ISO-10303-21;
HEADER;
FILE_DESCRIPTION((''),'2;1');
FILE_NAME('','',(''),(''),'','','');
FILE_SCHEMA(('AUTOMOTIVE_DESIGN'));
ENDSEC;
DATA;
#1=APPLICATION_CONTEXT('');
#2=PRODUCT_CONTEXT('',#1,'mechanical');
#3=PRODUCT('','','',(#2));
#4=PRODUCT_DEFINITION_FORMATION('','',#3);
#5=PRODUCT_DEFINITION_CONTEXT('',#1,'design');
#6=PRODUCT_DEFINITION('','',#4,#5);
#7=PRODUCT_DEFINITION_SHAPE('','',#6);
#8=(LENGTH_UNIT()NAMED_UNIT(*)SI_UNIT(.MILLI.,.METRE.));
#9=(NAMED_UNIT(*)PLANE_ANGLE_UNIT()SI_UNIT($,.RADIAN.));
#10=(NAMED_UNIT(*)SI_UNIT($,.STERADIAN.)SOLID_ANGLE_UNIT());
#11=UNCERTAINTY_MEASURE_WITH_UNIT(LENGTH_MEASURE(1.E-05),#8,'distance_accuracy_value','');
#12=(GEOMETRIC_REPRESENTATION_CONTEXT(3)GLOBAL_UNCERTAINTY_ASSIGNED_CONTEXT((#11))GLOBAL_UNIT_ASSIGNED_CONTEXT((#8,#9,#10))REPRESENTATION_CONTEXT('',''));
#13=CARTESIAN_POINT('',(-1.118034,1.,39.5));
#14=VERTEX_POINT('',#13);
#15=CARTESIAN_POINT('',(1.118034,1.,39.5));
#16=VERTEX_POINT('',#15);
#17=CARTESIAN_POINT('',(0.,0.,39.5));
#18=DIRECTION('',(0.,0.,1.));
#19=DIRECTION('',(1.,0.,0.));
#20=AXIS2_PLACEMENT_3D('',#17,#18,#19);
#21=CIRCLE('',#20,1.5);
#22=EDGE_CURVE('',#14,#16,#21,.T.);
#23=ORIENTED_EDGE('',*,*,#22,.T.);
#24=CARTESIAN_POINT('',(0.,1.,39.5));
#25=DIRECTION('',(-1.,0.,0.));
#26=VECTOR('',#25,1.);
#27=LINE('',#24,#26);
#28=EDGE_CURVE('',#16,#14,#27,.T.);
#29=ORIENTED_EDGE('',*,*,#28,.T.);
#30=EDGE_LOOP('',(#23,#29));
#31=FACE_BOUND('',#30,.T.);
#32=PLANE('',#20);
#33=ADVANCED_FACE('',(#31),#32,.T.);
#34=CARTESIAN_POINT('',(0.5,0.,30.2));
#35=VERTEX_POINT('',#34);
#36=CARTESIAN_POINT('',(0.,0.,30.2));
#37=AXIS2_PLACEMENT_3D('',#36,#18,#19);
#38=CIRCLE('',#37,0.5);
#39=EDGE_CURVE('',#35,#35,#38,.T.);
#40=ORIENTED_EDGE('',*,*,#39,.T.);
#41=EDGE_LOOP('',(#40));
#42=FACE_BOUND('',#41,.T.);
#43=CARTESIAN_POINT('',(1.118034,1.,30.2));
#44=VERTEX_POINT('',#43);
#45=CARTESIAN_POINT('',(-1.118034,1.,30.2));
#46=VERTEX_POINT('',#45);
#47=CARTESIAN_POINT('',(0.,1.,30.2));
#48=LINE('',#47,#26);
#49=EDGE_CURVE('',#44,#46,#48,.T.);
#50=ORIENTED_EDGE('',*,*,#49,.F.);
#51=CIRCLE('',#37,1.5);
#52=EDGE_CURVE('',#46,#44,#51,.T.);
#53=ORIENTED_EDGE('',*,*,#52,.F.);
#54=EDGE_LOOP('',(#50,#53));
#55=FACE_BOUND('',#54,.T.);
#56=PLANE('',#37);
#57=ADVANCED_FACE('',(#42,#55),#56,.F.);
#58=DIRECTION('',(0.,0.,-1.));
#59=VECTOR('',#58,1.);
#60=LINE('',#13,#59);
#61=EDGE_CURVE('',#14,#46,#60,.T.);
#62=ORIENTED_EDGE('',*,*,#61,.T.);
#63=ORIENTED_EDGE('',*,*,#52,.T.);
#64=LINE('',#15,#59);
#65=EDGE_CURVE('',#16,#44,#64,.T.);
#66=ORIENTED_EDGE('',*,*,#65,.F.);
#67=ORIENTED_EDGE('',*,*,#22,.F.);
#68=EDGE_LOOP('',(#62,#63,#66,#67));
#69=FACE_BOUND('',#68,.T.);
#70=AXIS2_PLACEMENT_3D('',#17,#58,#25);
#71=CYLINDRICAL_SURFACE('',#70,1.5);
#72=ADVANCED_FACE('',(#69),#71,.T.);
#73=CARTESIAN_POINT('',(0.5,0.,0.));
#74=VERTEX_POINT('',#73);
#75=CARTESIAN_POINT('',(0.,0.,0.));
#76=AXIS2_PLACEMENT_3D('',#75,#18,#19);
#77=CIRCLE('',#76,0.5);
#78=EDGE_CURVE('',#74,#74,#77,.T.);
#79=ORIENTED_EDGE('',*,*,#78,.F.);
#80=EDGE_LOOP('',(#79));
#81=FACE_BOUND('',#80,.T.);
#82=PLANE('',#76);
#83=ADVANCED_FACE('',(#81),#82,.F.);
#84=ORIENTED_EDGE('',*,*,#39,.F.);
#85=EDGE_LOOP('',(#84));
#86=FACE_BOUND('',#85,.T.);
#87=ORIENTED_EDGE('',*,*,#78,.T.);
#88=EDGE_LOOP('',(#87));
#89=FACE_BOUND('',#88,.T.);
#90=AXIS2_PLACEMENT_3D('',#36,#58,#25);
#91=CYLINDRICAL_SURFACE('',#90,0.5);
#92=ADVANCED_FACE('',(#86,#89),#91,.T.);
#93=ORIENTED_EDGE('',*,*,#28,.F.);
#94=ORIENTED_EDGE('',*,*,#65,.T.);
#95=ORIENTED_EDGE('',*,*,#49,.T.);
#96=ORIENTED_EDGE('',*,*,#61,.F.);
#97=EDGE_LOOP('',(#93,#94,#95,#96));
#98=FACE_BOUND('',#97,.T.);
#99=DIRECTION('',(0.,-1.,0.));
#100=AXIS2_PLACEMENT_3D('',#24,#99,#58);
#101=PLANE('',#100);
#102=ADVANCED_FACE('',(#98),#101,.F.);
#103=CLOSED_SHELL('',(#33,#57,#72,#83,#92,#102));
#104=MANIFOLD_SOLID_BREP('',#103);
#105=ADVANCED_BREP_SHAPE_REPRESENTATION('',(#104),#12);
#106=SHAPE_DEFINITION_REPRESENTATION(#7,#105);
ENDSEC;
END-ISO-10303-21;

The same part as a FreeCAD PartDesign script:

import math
import FreeCAD as App
import Part
import Sketcher

doc = App.newDocument("Part")
params = doc.addObject("Spreadsheet::Sheet", "Params")
for row, (alias, value) in enumerate([
    ("sketch1_diameter", "1 mm"),
    ("pad1_length", "30.2 mm"),
    ("sketch2_radius", "1.5 mm"),
    ("pad2_length", "9.3 mm"),
], start=1):
    params.set(f"A{row}", alias)
    params.set(f"B{row}", "=" + value)
    params.setAlias(f"B{row}", alias)

body = doc.addObject("PartDesign::Body", "Body")

# Sketch on XY plane
sketch1 = doc.addObject("Sketcher::SketchObject", "Sketch")
body.addObject(sketch1)
sketch1.AttachmentSupport = (doc.XY_Plane, [""])
sketch1.MapMode = "FlatFace"
sketch1.addGeometry(Part.Circle(App.Vector(0, 0, 0), App.Vector(0, 0, 1), 0.5), False)
sketch1.addConstraint(Sketcher.Constraint("Coincident", 0, 3, -1, 1))
sketch1.addConstraint(Sketcher.Constraint("Diameter", 0, 1.0))
sketch1.setExpression("Constraints[1]", "Params.sketch1_diameter")
pad1 = doc.addObject("PartDesign::Pad", "Pad")
body.addObject(pad1)
pad1.Profile = sketch1
pad1.setExpression("Length", "Params.pad1_length")

# Sketch on XY plane
sketch2 = doc.addObject("Sketcher::SketchObject", "Sketch001")
body.addObject(sketch2)
sketch2.AttachmentSupport = (doc.XY_Plane, [""])
sketch2.MapMode = "FlatFace"
sketch2.AttachmentOffset = App.Placement(App.Vector(0, 0, 30.2), App.Rotation())
sketch2.addGeometry(Part.LineSegment(App.Vector(1.1, 1, 0), App.Vector(-1.1, 1, 0)), False)
sketch2.addGeometry(Part.ArcOfCircle(Part.Circle(App.Vector(0, 0, 0), App.Vector(0, 0, 1), 1.5), math.radians(138), math.radians(402)), False)
sketch2.addConstraint(Sketcher.Constraint("Coincident", 0, 1, 1, 2))
sketch2.addConstraint(Sketcher.Constraint("Coincident", 1, 1, 0, 2))
sketch2.addConstraint(Sketcher.Constraint("Horizontal", 0))
sketch2.addConstraint(Sketcher.Constraint("Coincident", 1, 3, -1, 1))
sketch2.addConstraint(Sketcher.Constraint("Radius", 1, 1.5))
sketch2.addConstraint(Sketcher.Constraint("DistanceY", -1, 1, 0, 1, 1.0))
sketch2.setExpression("Constraints[4]", "Params.sketch2_radius")
pad2 = doc.addObject("PartDesign::Pad", "Pad001")
body.addObject(pad2)
pad2.Profile = sketch2
pad2.setExpression("Length", "Params.pad2_length")

doc.recompute()
